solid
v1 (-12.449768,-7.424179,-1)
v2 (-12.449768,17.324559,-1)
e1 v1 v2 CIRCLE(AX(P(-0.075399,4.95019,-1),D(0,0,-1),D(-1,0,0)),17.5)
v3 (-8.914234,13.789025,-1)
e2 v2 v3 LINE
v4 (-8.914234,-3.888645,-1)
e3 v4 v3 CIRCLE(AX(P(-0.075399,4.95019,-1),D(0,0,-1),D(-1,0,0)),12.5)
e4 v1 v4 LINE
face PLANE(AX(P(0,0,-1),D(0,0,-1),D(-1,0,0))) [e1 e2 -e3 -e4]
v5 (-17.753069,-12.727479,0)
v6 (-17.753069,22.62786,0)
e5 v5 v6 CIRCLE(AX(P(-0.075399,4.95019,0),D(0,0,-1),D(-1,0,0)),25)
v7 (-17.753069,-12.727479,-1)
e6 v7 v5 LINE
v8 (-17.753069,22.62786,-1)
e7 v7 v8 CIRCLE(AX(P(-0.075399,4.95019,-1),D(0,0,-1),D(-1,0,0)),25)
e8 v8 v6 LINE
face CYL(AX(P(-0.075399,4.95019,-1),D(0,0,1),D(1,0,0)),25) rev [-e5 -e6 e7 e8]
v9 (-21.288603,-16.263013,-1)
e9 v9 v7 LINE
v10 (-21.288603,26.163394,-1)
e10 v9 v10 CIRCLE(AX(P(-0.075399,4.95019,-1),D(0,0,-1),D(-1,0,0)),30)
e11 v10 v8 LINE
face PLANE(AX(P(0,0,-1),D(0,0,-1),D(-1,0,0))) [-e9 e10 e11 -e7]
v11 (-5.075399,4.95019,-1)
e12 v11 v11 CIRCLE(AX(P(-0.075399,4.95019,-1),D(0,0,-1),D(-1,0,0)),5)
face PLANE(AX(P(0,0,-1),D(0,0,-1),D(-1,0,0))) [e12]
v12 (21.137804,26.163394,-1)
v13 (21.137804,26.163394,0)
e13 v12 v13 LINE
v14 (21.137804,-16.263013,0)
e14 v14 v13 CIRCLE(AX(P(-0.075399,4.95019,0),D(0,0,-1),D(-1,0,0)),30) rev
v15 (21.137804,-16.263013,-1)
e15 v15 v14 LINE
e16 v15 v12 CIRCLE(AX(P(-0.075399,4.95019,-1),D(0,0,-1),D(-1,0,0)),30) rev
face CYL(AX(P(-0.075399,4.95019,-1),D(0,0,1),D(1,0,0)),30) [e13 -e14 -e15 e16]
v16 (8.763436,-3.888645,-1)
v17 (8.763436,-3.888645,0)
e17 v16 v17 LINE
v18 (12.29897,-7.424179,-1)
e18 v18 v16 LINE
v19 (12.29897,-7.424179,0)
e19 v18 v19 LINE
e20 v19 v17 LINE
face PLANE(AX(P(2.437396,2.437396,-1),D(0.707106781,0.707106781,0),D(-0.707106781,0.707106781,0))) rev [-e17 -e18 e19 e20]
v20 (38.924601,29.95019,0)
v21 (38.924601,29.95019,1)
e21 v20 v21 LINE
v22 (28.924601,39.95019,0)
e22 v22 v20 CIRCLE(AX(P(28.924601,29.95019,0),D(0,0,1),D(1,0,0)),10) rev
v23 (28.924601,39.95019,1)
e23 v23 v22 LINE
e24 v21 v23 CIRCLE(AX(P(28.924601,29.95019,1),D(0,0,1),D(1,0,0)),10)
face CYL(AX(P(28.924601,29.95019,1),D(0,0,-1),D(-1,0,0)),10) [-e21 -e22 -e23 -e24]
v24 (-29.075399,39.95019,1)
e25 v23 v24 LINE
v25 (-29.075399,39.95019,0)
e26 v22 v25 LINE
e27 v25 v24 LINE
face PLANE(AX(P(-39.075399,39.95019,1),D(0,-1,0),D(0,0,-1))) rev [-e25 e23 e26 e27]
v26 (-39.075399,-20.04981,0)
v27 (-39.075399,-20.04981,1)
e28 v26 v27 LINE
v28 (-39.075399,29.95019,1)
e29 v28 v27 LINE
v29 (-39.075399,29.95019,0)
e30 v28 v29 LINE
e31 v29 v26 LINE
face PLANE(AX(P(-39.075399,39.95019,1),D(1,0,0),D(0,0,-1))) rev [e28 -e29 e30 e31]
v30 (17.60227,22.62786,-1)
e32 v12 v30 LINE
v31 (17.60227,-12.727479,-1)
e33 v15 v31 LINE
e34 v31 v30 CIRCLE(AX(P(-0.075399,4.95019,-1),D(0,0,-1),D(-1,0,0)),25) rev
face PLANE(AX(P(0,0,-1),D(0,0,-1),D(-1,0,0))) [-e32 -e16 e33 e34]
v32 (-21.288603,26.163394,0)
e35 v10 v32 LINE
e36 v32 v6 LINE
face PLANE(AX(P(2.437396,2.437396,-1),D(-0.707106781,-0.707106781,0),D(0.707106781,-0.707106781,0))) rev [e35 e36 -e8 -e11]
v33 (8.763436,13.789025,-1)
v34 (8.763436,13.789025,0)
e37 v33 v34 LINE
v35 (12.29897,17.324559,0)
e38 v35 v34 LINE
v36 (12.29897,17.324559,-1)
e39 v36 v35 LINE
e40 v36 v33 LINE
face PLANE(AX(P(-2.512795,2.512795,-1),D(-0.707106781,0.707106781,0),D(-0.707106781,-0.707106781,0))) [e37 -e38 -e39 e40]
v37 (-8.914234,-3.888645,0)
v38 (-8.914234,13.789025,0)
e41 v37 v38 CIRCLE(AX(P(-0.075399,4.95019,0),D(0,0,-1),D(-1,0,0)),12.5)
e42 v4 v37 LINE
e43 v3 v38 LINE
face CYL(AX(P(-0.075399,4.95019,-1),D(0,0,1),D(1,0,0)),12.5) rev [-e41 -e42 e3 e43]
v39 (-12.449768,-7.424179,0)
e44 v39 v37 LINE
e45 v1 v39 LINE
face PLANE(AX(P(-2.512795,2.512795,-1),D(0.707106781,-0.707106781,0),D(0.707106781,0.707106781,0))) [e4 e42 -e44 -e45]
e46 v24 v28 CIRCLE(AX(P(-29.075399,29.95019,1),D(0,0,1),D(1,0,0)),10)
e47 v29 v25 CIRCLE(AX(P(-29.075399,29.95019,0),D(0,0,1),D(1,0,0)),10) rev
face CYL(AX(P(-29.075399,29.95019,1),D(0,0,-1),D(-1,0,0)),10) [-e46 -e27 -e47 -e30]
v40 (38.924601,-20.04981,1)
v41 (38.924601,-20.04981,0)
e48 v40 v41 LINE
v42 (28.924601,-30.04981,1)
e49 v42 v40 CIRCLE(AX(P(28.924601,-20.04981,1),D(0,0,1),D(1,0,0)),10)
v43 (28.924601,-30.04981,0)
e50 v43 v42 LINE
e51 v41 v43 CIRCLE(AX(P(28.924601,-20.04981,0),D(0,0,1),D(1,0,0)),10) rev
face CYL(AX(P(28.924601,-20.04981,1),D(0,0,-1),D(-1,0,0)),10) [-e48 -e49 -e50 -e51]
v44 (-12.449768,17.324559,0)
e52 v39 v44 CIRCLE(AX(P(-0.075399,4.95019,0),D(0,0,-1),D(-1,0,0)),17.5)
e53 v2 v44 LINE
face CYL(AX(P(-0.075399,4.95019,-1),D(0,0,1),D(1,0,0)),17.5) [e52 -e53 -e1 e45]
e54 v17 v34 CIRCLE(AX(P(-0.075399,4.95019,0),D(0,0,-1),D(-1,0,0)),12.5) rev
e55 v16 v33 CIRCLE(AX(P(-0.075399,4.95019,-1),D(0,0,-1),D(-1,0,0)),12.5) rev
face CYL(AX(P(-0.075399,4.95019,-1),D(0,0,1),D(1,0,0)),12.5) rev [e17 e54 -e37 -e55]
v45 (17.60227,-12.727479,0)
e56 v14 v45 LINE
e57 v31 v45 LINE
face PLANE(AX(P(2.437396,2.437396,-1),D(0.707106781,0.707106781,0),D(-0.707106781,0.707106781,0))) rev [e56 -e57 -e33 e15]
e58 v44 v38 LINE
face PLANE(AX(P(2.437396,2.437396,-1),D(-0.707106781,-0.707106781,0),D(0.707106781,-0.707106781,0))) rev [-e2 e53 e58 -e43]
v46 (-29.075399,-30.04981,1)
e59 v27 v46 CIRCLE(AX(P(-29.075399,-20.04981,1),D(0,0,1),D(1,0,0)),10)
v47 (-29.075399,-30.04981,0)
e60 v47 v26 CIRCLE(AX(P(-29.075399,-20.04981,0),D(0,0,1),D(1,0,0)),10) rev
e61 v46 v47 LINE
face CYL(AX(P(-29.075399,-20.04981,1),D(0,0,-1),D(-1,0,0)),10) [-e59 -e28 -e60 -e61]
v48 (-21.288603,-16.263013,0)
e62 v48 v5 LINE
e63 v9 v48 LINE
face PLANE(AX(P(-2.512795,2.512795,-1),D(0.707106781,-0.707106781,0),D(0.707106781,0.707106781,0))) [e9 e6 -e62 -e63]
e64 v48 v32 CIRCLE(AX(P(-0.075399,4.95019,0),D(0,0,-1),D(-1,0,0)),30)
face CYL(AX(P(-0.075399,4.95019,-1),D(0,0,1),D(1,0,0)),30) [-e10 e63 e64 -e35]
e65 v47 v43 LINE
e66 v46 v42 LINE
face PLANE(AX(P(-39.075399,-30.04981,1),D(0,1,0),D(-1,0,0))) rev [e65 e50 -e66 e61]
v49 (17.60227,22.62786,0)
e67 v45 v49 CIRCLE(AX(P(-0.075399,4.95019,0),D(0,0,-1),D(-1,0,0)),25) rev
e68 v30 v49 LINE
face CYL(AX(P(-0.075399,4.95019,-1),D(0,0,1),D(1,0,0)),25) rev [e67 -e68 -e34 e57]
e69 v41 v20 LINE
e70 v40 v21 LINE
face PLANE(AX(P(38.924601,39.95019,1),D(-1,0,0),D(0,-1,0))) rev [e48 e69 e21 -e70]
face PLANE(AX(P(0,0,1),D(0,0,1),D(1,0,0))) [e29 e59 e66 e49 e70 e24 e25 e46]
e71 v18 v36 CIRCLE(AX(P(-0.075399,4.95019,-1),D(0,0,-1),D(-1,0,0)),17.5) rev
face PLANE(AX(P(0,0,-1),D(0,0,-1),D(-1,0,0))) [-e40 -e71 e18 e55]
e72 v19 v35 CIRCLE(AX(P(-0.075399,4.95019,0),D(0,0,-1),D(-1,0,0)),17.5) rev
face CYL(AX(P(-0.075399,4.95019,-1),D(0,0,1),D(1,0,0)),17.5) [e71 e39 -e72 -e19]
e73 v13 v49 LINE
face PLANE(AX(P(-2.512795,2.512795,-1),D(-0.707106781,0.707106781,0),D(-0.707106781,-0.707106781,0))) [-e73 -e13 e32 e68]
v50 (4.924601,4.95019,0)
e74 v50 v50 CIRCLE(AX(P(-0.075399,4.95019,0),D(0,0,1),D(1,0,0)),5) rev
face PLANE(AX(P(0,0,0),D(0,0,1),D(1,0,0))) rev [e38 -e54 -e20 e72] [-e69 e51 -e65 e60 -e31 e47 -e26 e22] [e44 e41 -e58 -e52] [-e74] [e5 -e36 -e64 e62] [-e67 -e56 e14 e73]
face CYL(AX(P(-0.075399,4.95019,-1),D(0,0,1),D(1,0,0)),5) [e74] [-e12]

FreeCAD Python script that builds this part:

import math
import FreeCAD as App
import Part
import Sketcher


def edges_at(feature, points):
    """Names of the edges that pass closest to the given points."""
    edges = feature.Shape.Edges
    near = lambda p: min(range(len(edges)), key=lambda i: edges[i].distToShape(Part.Vertex(*p))[0])
    return sorted({f"Edge{near(p) + 1}" for p in points})


def add_polygon(sketch, points):
    """Adds a closed chain of lines whose ends are joined by coincident constraints."""
    first, n = sketch.GeometryCount, len(points)
    for a, b in zip(points, points[1:] + points[:1]):
        sketch.addGeometry(Part.LineSegment(App.Vector(*a, 0), App.Vector(*b, 0)), False)
    for i in range(n):
        sketch.addConstraint(Sketcher.Constraint("Coincident", first + i, 2, first + (i + 1) % n, 1))

doc = App.newDocument("Part")
params = doc.addObject("Spreadsheet::Sheet", "Params")
for row, (alias, value) in enumerate([
    ("sketch1_width", "78 mm"),
    ("sketch1_height", "70 mm"),
    ("pad1_length", "1 mm"),
    ("fillet_radius", "10 mm"),
    ("sketch2_diameter", "10 mm"),
    ("sketch2_radius", "30 mm"),
    ("sketch2_radius2", "25 mm"),
    ("sketch2_radius3", "17.5 mm"),
    ("pad2_length", "1 mm"),
], start=1):
    params.set(f"A{row}", alias)
    params.set(f"B{row}", "=" + value)
    params.setAlias(f"B{row}", alias)

body = doc.addObject("PartDesign::Body", "Body")

# Sketch on XY plane
sketch1 = body.newObject("Sketcher::SketchObject", "Sketch")
sketch1.AttachmentSupport = (doc.getObject("XY_Plane"), [""])
sketch1.MapMode = "FlatFace"
add_polygon(sketch1, [(-39, 40), (-39, -30), (39, -30), (39, 40)])  # lines 0-3
sketch1.addConstraint(Sketcher.Constraint("Vertical", 0))
sketch1.addConstraint(Sketcher.Constraint("Horizontal", 1))
sketch1.addConstraint(Sketcher.Constraint("Vertical", 2))
sketch1.addConstraint(Sketcher.Constraint("Horizontal", 3))
sketch1.addConstraint(Sketcher.Constraint("DistanceX", 1, 1, 1, 2, 78.0))
sketch1.addConstraint(Sketcher.Constraint("DistanceY", 0, 2, 0, 1, 70.0))
sketch1.addConstraint(Sketcher.Constraint("DistanceX", 0, 2, -1, 1, 39.075399))
sketch1.addConstraint(Sketcher.Constraint("DistanceY", 0, 2, -1, 1, 30.04981))
sketch1.setExpression("Constraints[8]", "Params.sketch1_width")
sketch1.setExpression("Constraints[9]", "Params.sketch1_height")
pad1 = body.newObject("PartDesign::Pad", "Pad")
pad1.Profile = sketch1
pad1.setExpression("Length", "Params.pad1_length")
doc.recompute()

fillet = body.newObject("PartDesign::Fillet", "Fillet")
fillet.Base = (pad1, edges_at(pad1, [
    (38.925, -30.05, 0.5),
    (-39.075, -30.05, 0.5),
    (-39.075, 39.95, 0.5),
    (38.925, 39.95, 0.5),
]))
fillet.setExpression("Radius", "Params.fillet_radius")

# Sketch on XY plane
sketch2 = body.newObject("Sketcher::SketchObject", "Sketch001")
sketch2.AttachmentSupport = (doc.getObject("XY_Plane"), [""])
sketch2.MapMode = "FlatFace"
sketch2.addGeometry(Part.LineSegment(App.Vector(-9, -4, 0), App.Vector(-12, -7, 0)), False)
sketch2.addGeometry(Part.ArcOfCircle(Part.Circle(App.Vector(0, 5, 0), App.Vector(0, 0, 1), 17), math.radians(135), math.radians(225)), False)
sketch2.addGeometry(Part.LineSegment(App.Vector(-12, 17, 0), App.Vector(-9, 14, 0)), False)
sketch2.addGeometry(Part.ArcOfCircle(Part.Circle(App.Vector(0, 5, 0), App.Vector(0, 0, 1), 12), math.radians(135), math.radians(225)), False)
sketch2.addGeometry(Part.Circle(App.Vector(0, 5, 0), App.Vector(0, 0, 1), 5), False)
sketch2.addGeometry(Part.LineSegment(App.Vector(-18, -13, 0), App.Vector(-21, -16, 0)), False)
sketch2.addGeometry(Part.ArcOfCircle(Part.Circle(App.Vector(0, 5, 0), App.Vector(0, 0, 1), 30), math.radians(135), math.radians(225)), False)
sketch2.addGeometry(Part.LineSegment(App.Vector(-21, 26, 0), App.Vector(-18, 23, 0)), False)
sketch2.addGeometry(Part.ArcOfCircle(Part.Circle(App.Vector(0, 5, 0), App.Vector(0, 0, 1), 25), math.radians(135), math.radians(225)), False)
sketch2.addGeometry(Part.LineSegment(App.Vector(12, -7, 0), App.Vector(9, -4, 0)), False)
sketch2.addGeometry(Part.ArcOfCircle(Part.Circle(App.Vector(0, 5, 0), App.Vector(0, 0, 1), 13), math.radians(-45), math.radians(45)), False)
sketch2.addGeometry(Part.LineSegment(App.Vector(9, 14, 0), App.Vector(12, 17, 0)), False)
sketch2.addGeometry(Part.ArcOfCircle(Part.Circle(App.Vector(0, 5, 0), App.Vector(0, 0, 1), 18), math.radians(-45), math.radians(45)), False)
sketch2.addGeometry(Part.LineSegment(App.Vector(21, -16, 0), App.Vector(18, -13, 0)), False)
sketch2.addGeometry(Part.ArcOfCircle(Part.Circle(App.Vector(0, 5, 0), App.Vector(0, 0, 1), 25), math.radians(-45), math.radians(45)), False)
sketch2.addGeometry(Part.LineSegment(App.Vector(18, 23, 0), App.Vector(21, 26, 0)), False)
sketch2.addGeometry(Part.ArcOfCircle(Part.Circle(App.Vector(0, 5, 0), App.Vector(0, 0, 1), 30), math.radians(-45), math.radians(45)), False)
sketch2.addConstraint(Sketcher.Constraint("Coincident", 0, 2, 1, 2))
sketch2.addConstraint(Sketcher.Constraint("Coincident", 1, 1, 2, 1))
sketch2.addConstraint(Sketcher.Constraint("Coincident", 2, 2, 3, 1))
sketch2.addConstraint(Sketcher.Constraint("Coincident", 3, 2, 0, 1))
sketch2.addConstraint(Sketcher.Constraint("Coincident", 5, 2, 6, 2))
sketch2.addConstraint(Sketcher.Constraint("Coincident", 6, 1, 7, 1))
sketch2.addConstraint(Sketcher.Constraint("Coincident", 7, 2, 8, 1))
sketch2.addConstraint(Sketcher.Constraint("Coincident", 8, 2, 5, 1))
sketch2.addConstraint(Sketcher.Constraint("Coincident", 9, 2, 10, 1))
sketch2.addConstraint(Sketcher.Constraint("Coincident", 10, 2, 11, 1))
sketch2.addConstraint(Sketcher.Constraint("Coincident", 11, 2, 12, 2))
sketch2.addConstraint(Sketcher.Constraint("Coincident", 12, 1, 9, 1))
sketch2.addConstraint(Sketcher.Constraint("Coincident", 13, 2, 14, 1))
sketch2.addConstraint(Sketcher.Constraint("Coincident", 14, 2, 15, 1))
sketch2.addConstraint(Sketcher.Constraint("Coincident", 15, 2, 16, 2))
sketch2.addConstraint(Sketcher.Constraint("Coincident", 16, 1, 13, 1))
sketch2.addConstraint(Sketcher.Constraint("Coincident", 3, 3, 1, 3))
sketch2.addConstraint(Sketcher.Constraint("Coincident", 4, 3, 1, 3))
sketch2.addConstraint(Sketcher.Constraint("Coincident", 6, 3, 1, 3))
sketch2.addConstraint(Sketcher.Constraint("Coincident", 8, 3, 1, 3))
sketch2.addConstraint(Sketcher.Constraint("Coincident", 10, 3, 1, 3))
sketch2.addConstraint(Sketcher.Constraint("Coincident", 12, 3, 1, 3))
sketch2.addConstraint(Sketcher.Constraint("Coincident", 14, 3, 1, 3))
sketch2.addConstraint(Sketcher.Constraint("Coincident", 16, 3, 1, 3))
sketch2.addConstraint(Sketcher.Constraint("Equal", 3, 10))
sketch2.addConstraint(Sketcher.Constraint("Equal", 1, 12))
sketch2.addConstraint(Sketcher.Constraint("Equal", 8, 14))
sketch2.addConstraint(Sketcher.Constraint("Equal", 6, 16))
sketch2.addConstraint(Sketcher.Constraint("Perpendicular", 0, 2))
sketch2.addConstraint(Sketcher.Constraint("Perpendicular", 2, 5))
sketch2.addConstraint(Sketcher.Constraint("Perpendicular", 5, 7))
sketch2.addConstraint(Sketcher.Constraint("Parallel", 7, 9))
sketch2.addConstraint(Sketcher.Constraint("Perpendicular", 9, 11))
sketch2.addConstraint(Sketcher.Constraint("Perpendicular", 11, 13))
sketch2.addConstraint(Sketcher.Constraint("Perpendicular", 13, 15))
sketch2.addConstraint(Sketcher.Constraint("Horizontal", 3, 2, 9, 2))
sketch2.addConstraint(Sketcher.Constraint("Horizontal", 2, 2, 10, 2))
sketch2.addConstraint(Sketcher.Constraint("Horizontal", 1, 1, 11, 2))
sketch2.addConstraint(Sketcher.Constraint("Horizontal", 8, 2, 13, 2))
sketch2.addConstraint(Sketcher.Constraint("Horizontal", 7, 2, 14, 2))
sketch2.addConstraint(Sketcher.Constraint("Vertical", 0, 2, 1, 1))
sketch2.addConstraint(Sketcher.Constraint("Vertical", 5, 2, 6, 1))
sketch2.addConstraint(Sketcher.Constraint("Equal", 2, 5))
sketch2.addConstraint(Sketcher.Constraint("Diameter", 4, 10.0))
sketch2.addConstraint(Sketcher.Constraint("Radius", 6, 30.0))
sketch2.addConstraint(Sketcher.Constraint("Radius", 8, 25.0))
sketch2.addConstraint(Sketcher.Constraint("Radius", 1, 17.5))
sketch2.addConstraint(Sketcher.Constraint("DistanceX", 1, 3, -1, 1, 0.075399))
sketch2.addConstraint(Sketcher.Constraint("DistanceX", 7, 2, 1, 1, 5.303301))
sketch2.addConstraint(Sketcher.Constraint("DistanceY", -1, 1, 1, 3, 4.95019))
sketch2.addConstraint(Sketcher.Constraint("DistanceY", 0, 2, -1, 1, 7.424179))
sketch2.setExpression("Constraints[43]", "Params.sketch2_diameter")
sketch2.setExpression("Constraints[44]", "Params.sketch2_radius")
sketch2.setExpression("Constraints[45]", "Params.sketch2_radius2")
sketch2.setExpression("Constraints[46]", "Params.sketch2_radius3")
pad2 = body.newObject("PartDesign::Pad", "Pad001")
pad2.Profile = sketch2
pad2.setExpression("Length", "Params.pad2_length")
pad2.Reversed = True

doc.recompute()
